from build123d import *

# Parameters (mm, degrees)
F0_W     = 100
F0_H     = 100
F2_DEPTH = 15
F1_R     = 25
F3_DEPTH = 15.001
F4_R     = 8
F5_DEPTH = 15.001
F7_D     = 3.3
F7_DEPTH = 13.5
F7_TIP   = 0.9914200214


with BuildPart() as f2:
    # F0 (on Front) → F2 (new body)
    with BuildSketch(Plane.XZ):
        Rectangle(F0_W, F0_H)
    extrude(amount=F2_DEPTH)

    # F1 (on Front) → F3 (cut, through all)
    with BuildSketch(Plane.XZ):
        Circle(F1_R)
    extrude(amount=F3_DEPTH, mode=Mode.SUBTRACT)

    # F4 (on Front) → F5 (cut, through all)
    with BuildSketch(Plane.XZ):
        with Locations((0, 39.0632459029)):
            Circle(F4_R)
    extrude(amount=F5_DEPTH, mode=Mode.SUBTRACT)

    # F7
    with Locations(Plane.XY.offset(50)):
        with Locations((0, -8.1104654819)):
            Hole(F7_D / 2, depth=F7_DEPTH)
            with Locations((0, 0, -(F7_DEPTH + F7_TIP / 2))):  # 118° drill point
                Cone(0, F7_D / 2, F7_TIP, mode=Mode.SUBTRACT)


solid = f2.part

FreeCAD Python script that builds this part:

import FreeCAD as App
import Part
import Sketcher
from FreeCAD import Vector
Q = App.Units.Quantity

doc = App.newDocument("Part")
body = doc.addObject("PartDesign::Body", "Body")

# Sketch on XZ plane
sketch1 = body.newObject("Sketcher::SketchObject", "Sketch")
sketch1.AttachmentSupport = (doc.getObject("XZ_Plane"), [""])
sketch1.MapMode = "FlatFace"
sketch1.addGeometry([
    Part.LineSegment(Vector(-50, 50, 0), Vector(-50, -50, 0)),
    Part.LineSegment(Vector(-50, -50, 0), Vector(50, -50, 0)),
    Part.LineSegment(Vector(50, -50, 0), Vector(50, 50, 0)),
    Part.LineSegment(Vector(50, 50, 0), Vector(-50, 50, 0)),
], False)
sketch1.addConstraint([
    Sketcher.Constraint("Coincident", 0, 2, 1, 1),
    Sketcher.Constraint("Coincident", 1, 2, 2, 1),
    Sketcher.Constraint("Coincident", 2, 2, 3, 1),
    Sketcher.Constraint("Coincident", 3, 2, 0, 1),
    Sketcher.Constraint("Vertical", 0),
    Sketcher.Constraint("Horizontal", 1),
    Sketcher.Constraint("Vertical", 2),
    Sketcher.Constraint("Horizontal", 3),
    Sketcher.Constraint("Symmetric", 0, 2, 2, 2, -1, 1),
    Sketcher.Constraint("Equal", 3, 0),
    Sketcher.Constraint("DistanceX", 1, 1, 1, 2, Q("100 mm")),
])
pad1 = body.newObject("PartDesign::Pad", "Pad")
pad1.Profile = sketch1
pad1.Length = 15

# Sketch on XZ plane
sketch2 = body.newObject("Sketcher::SketchObject", "Sketch001")
sketch2.AttachmentSupport = (doc.getObject("XZ_Plane"), [""])
sketch2.MapMode = "FlatFace"
sketch2.addGeometry(Part.Circle(Vector(0, 0, 0), Vector(0, 0, 1), 25), False)
sketch2.addConstraint([
    Sketcher.Constraint("Coincident", 0, 3, -1, 1),
    Sketcher.Constraint("Diameter", 0, Q("50 mm")),
])
pocket1 = body.newObject("PartDesign::Pocket", "Pocket")
pocket1.Profile = sketch2
pocket1.Type = "ThroughAll"
pocket1.Reversed = True

# Sketch on XZ plane
sketch3 = body.newObject("Sketcher::SketchObject", "Sketch002")
sketch3.AttachmentSupport = (doc.getObject("XZ_Plane"), [""])
sketch3.MapMode = "FlatFace"
sketch3.addGeometry(Part.Circle(Vector(0, 39, 0), Vector(0, 0, 1), 8), False)
sketch3.addConstraint([
    Sketcher.Constraint("PointOnObject", 0, 3, -2),
    Sketcher.Constraint("Diameter", 0, Q("16 mm")),
    Sketcher.Constraint("DistanceY", -1, 1, 0, 3, Q("39.063246 mm")),
])
pocket2 = body.newObject("PartDesign::Pocket", "Pocket001")
pocket2.Profile = sketch3
pocket2.Type = "ThroughAll"
pocket2.Reversed = True

# Sketch on XY plane
sketch4 = body.newObject("Sketcher::SketchObject", "Sketch003")
sketch4.AttachmentSupport = (doc.getObject("XY_Plane"), [""])
sketch4.MapMode = "FlatFace"
sketch4.AttachmentOffset = App.Placement(Vector(0, 0, 50), App.Rotation())
sketch4.addGeometry(Part.Circle(Vector(0, -8.1, 0), Vector(0, 0, 1), 1.6), False)
sketch4.addConstraint([
    Sketcher.Constraint("PointOnObject", 0, 3, -2),
    Sketcher.Constraint("Diameter", 0, Q("3.3 mm")),
    Sketcher.Constraint("DistanceY", 0, 3, -1, 1, Q("8.110465 mm")),
])
doc.recompute()
hole = body.newObject("PartDesign::Hole", "Hole")
hole.Profile = sketch4
hole.ThreadType = "None"
hole.Diameter = 3.3
hole.DepthType = "Dimension"
hole.Depth = 13.5
hole.DrillPoint = "Angled"
hole.DrillPointAngle = 118

doc.recompute()
